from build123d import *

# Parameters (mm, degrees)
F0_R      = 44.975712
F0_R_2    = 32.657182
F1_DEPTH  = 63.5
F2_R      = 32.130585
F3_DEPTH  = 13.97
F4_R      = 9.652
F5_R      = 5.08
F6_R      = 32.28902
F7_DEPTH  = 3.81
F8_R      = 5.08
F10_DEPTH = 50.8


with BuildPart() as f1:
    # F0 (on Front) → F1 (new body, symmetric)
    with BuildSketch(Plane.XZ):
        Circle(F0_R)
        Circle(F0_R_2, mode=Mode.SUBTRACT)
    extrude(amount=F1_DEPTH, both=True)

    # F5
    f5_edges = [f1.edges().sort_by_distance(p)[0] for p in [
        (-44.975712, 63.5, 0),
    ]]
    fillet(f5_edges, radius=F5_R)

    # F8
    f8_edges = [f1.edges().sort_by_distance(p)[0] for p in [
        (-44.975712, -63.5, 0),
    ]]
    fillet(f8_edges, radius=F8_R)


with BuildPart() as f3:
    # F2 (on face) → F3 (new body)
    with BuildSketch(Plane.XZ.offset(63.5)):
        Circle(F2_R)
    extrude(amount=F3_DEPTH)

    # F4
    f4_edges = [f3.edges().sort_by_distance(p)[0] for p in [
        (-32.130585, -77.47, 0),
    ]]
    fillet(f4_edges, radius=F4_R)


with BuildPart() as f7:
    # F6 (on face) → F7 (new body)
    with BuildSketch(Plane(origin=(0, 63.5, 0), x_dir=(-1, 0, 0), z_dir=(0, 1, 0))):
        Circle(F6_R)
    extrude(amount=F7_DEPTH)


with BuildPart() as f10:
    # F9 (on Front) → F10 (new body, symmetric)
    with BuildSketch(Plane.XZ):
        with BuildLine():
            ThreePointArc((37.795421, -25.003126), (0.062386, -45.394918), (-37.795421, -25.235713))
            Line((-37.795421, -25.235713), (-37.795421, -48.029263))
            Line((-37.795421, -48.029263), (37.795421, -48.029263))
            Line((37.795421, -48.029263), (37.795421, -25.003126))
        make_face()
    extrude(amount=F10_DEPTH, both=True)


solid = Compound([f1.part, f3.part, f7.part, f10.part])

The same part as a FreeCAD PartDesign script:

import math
import FreeCAD as App
import Part
import Sketcher

V = App.Vector
Q = App.Units.Quantity


def edges_at(feature, points):
    """Names of the edges that pass closest to the given points."""
    edges = feature.Shape.Edges
    near = lambda p: min(range(len(edges)), key=lambda i: edges[i].distToShape(Part.Vertex(*p))[0])
    return sorted({f"Edge{near(p) + 1}" for p in points})

doc = App.newDocument("Part")
body = doc.addObject("PartDesign::Body", "Body")

# Sketch on XZ plane
sketch1 = body.newObject("Sketcher::SketchObject", "Sketch")
sketch1.AttachmentSupport = (doc.getObject("XZ_Plane"), [""])
sketch1.MapMode = "FlatFace"
sketch1.addGeometry([
    Part.Circle(V(0, 0, 0), V(0, 0, 1), 45),
    Part.Circle(V(0, 0, 0), V(0, 0, 1), 33),
], False)
sketch1.addConstraint([
    Sketcher.Constraint("Coincident", 0, 3, -1, 1),
    Sketcher.Constraint("Coincident", 1, 3, -1, 1),
    Sketcher.Constraint("Diameter", 0, Q("89.951424 mm")),
    Sketcher.Constraint("Diameter", 1, Q("65.314364 mm")),
])
pad1 = body.newObject("PartDesign::Pad", "Pad")
pad1.Profile = sketch1
pad1.Length = Q("5 in")
pad1.Midplane = True
doc.recompute()

fillet = body.newObject("PartDesign::Fillet", "Fillet")
fillet.Base = (pad1, edges_at(pad1, [(-44.976, 63.5, 0)]))
fillet.Radius = Q("0.2 in")
doc.recompute()

fillet2 = body.newObject("PartDesign::Fillet", "Fillet001")
fillet2.Base = (fillet, edges_at(fillet, [(-44.976, -63.5, 0)]))
fillet2.Radius = Q("0.2 in")
body2 = doc.addObject("PartDesign::Body", "Body001")

# Sketch on XZ plane
sketch2 = body2.newObject("Sketcher::SketchObject", "Sketch001")
sketch2.AttachmentSupport = (doc.getObject("XZ_Plane001"), [""])
sketch2.MapMode = "FlatFace"
sketch2.AttachmentOffset = App.Placement(V(0, 0, 2.5 * 25.4), App.Rotation())
sketch2.addGeometry(Part.Circle(V(0, 0, 0), V(0, 0, 1), 32), False)
sketch2.addConstraint([
    Sketcher.Constraint("Coincident", 0, 3, -1, 1),
    Sketcher.Constraint("Diameter", 0, Q("64.26117 mm")),
])
pad2 = body2.newObject("PartDesign::Pad", "Pad001")
pad2.Profile = sketch2
pad2.Length = Q("0.55 in")
doc.recompute()

fillet3 = body2.newObject("PartDesign::Fillet", "Fillet002")
fillet3.Base = (pad2, edges_at(pad2, [(-32.131, -77.47, 0)]))
fillet3.Radius = Q("0.38 in")
body3 = doc.addObject("PartDesign::Body", "Body002")

# Sketch on XZ plane
sketch3 = body3.newObject("Sketcher::SketchObject", "Sketch002")
sketch3.AttachmentSupport = (doc.getObject("XZ_Plane002"), [""])
sketch3.MapMode = "FlatFace"
sketch3.AttachmentOffset = App.Placement(V(0, 0, -2.5 * 25.4), App.Rotation())
sketch3.addGeometry(Part.Circle(V(0, 0, 0), V(0, 0, 1), 32), False)
sketch3.addConstraint([
    Sketcher.Constraint("Coincident", 0, 3, -1, 1),
    Sketcher.Constraint("Diameter", 0, Q("64.57804 mm")),
])
pad3 = body3.newObject("PartDesign::Pad", "Pad002")
pad3.Profile = sketch3
pad3.Length = Q("0.15 in")
pad3.Reversed = True
body4 = doc.addObject("PartDesign::Body", "Body003")

# Sketch on XZ plane
sketch4 = body4.newObject("Sketcher::SketchObject", "Sketch003")
sketch4.AttachmentSupport = (doc.getObject("XZ_Plane003"), [""])
sketch4.MapMode = "FlatFace"
sketch4.addGeometry([
    Part.ArcOfCircle(Part.Circle(V(0, 0, 0), V(0, 0, 1), 45), math.radians(-146), math.radians(-33)),
    Part.LineSegment(V(-38, -25, 0), V(-38, -48, 0)),
    Part.LineSegment(V(-38, -48, 0), V(38, -48, 0)),
    Part.LineSegment(V(38, -48, 0), V(38, -25, 0)),
], False)
sketch4.addConstraint([
    Sketcher.Constraint("Coincident", 0, 1, 1, 1),
    Sketcher.Constraint("Coincident", 1, 2, 2, 1),
    Sketcher.Constraint("Coincident", 2, 2, 3, 1),
    Sketcher.Constraint("Coincident", 3, 2, 0, 2),
    Sketcher.Constraint("Vertical", 1),
    Sketcher.Constraint("Horizontal", 2),
    Sketcher.Constraint("Vertical", 3),
    Sketcher.Constraint("DistanceY", 3, 2, -1, 1, Q("0.984375 in")),
    Sketcher.Constraint("Radius", 0, Q("45.36506 mm")),
    Sketcher.Constraint("DistanceX", 2, 1, 2, 2, Q("75.590842 mm")),
    Sketcher.Constraint("DistanceY", 1, 2, 1, 1, Q("22.79355 mm")),
    Sketcher.Constraint("DistanceY", 3, 1, 3, 2, Q("23.026137 mm")),
    Sketcher.Constraint("DistanceX", 0, 1, -1, 1, Q("37.795421 mm")),
])
pad4 = body4.newObject("PartDesign::Pad", "Pad003")
pad4.Profile = sketch4
pad4.Length = Q("4 in")
pad4.Midplane = True

doc.recompute()
